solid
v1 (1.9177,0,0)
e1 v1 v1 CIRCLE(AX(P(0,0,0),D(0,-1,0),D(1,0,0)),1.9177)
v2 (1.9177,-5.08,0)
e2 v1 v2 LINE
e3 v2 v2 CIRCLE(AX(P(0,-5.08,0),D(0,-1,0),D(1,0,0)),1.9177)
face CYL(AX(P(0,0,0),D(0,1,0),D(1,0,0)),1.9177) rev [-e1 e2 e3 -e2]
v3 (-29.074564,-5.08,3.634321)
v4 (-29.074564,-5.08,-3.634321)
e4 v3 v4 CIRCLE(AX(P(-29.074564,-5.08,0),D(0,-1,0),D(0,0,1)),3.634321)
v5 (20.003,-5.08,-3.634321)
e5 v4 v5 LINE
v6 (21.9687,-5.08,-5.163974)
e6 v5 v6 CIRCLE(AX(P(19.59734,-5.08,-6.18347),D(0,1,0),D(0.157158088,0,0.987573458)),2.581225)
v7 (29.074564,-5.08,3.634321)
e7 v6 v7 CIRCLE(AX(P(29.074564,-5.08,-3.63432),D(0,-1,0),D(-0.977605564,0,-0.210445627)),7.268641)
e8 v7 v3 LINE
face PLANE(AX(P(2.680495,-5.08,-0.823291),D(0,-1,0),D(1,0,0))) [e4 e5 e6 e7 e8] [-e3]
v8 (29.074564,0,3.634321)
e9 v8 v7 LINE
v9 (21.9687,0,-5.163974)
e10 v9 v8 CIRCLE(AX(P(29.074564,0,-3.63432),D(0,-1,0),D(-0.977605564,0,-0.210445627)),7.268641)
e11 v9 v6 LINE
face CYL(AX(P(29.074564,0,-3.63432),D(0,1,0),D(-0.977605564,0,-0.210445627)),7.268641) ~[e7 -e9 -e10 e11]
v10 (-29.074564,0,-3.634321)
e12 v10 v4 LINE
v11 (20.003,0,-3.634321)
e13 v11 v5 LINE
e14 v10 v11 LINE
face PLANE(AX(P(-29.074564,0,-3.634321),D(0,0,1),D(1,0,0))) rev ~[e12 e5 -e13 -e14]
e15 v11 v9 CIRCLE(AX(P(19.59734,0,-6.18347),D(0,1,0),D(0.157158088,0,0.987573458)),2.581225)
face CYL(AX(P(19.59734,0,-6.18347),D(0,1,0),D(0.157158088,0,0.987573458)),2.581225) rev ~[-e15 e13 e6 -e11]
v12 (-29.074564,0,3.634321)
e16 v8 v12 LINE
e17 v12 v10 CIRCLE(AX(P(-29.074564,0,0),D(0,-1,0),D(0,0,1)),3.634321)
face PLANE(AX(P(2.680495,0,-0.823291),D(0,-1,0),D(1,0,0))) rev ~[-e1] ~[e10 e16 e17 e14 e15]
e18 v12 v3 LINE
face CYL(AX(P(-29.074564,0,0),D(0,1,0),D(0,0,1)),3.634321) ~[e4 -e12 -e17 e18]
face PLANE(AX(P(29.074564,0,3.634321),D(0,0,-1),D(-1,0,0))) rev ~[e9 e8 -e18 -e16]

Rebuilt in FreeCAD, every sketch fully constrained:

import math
import FreeCAD as App
import Part
import Sketcher
Q = App.Units.Quantity

doc = App.newDocument("Part")
body = doc.addObject("PartDesign::Body", "Body")

# Sketch on XZ plane
sketch1 = body.newObject("Sketcher::SketchObject", "Sketch")
sketch1.AttachmentSupport = (doc.getObject("XZ_Plane"), [""])
sketch1.MapMode = "FlatFace"
sketch1.addGeometry([
    Part.LineSegment(App.Vector(-29.074564, -3.634321, 0), App.Vector(20.003, -3.634321, 0)),  # 0
    Part.ArcOfCircle(Part.Circle(App.Vector(19.59734, -6.18347, 0), App.Vector(0, 0, 1), 2.581225), math.radians(23.26386), math.radians(80.95802)),  # 1
    Part.ArcOfCircle(Part.Circle(App.Vector(29.074564, -3.63432, 0), App.Vector(0, 0, 1), 7.268641), math.radians(-167.851532), math.radians(90.000001)),  # 2
    Part.LineSegment(App.Vector(29.074564, 3.634321, 0), App.Vector(-29.074564, 3.634321, 0)),  # 3
    Part.ArcOfCircle(Part.Circle(App.Vector(-29.074564, 0, 0), App.Vector(0, 0, 1), 3.634321), math.radians(90), math.radians(270)),  # 4
    Part.Circle(App.Vector(0, 0, 0), App.Vector(0, 0, 1), 1.9177),  # 5
], False)
sketch1.addConstraint([
    Sketcher.Constraint("Coincident", 0, 2, 1, 2),
    Sketcher.Constraint("Coincident", 1, 1, 2, 1),
    Sketcher.Constraint("Tangent", 2, 2, 3, 1),
    Sketcher.Constraint("Tangent", 3, 2, 4, 1),
    Sketcher.Constraint("Tangent", 4, 2, 0, 1),
    Sketcher.Constraint("Horizontal", 0),
    Sketcher.Constraint("Horizontal", 3),
    Sketcher.Constraint("Coincident", 5, 3, -1, 1),
    Sketcher.Constraint("Symmetric", 2, 2, 4, 2, -1, 1),
    Sketcher.Constraint("Horizontal", 2, 3, 0, 2),
    Sketcher.Constraint("Diameter", 5, Q("0.151 in")),
    Sketcher.Constraint("Radius", 2, Q("7.268641 mm")),
    Sketcher.Constraint("Radius", 1, Q("2.581225 mm")),
    Sketcher.Constraint("DistanceX", -1, 1, 0, 2, Q("20.003 mm")),
    Sketcher.Constraint("DistanceX", -1, 1, 1, 1, Q("21.9687 mm")),
    Sketcher.Constraint("DistanceX", 0, 1, 0, 2, Q("49.077564 mm")),
])
pad1 = body.newObject("PartDesign::Pad", "Pad")
pad1.Profile = sketch1
pad1.Length = Q("0.2 in")

doc.recompute()
